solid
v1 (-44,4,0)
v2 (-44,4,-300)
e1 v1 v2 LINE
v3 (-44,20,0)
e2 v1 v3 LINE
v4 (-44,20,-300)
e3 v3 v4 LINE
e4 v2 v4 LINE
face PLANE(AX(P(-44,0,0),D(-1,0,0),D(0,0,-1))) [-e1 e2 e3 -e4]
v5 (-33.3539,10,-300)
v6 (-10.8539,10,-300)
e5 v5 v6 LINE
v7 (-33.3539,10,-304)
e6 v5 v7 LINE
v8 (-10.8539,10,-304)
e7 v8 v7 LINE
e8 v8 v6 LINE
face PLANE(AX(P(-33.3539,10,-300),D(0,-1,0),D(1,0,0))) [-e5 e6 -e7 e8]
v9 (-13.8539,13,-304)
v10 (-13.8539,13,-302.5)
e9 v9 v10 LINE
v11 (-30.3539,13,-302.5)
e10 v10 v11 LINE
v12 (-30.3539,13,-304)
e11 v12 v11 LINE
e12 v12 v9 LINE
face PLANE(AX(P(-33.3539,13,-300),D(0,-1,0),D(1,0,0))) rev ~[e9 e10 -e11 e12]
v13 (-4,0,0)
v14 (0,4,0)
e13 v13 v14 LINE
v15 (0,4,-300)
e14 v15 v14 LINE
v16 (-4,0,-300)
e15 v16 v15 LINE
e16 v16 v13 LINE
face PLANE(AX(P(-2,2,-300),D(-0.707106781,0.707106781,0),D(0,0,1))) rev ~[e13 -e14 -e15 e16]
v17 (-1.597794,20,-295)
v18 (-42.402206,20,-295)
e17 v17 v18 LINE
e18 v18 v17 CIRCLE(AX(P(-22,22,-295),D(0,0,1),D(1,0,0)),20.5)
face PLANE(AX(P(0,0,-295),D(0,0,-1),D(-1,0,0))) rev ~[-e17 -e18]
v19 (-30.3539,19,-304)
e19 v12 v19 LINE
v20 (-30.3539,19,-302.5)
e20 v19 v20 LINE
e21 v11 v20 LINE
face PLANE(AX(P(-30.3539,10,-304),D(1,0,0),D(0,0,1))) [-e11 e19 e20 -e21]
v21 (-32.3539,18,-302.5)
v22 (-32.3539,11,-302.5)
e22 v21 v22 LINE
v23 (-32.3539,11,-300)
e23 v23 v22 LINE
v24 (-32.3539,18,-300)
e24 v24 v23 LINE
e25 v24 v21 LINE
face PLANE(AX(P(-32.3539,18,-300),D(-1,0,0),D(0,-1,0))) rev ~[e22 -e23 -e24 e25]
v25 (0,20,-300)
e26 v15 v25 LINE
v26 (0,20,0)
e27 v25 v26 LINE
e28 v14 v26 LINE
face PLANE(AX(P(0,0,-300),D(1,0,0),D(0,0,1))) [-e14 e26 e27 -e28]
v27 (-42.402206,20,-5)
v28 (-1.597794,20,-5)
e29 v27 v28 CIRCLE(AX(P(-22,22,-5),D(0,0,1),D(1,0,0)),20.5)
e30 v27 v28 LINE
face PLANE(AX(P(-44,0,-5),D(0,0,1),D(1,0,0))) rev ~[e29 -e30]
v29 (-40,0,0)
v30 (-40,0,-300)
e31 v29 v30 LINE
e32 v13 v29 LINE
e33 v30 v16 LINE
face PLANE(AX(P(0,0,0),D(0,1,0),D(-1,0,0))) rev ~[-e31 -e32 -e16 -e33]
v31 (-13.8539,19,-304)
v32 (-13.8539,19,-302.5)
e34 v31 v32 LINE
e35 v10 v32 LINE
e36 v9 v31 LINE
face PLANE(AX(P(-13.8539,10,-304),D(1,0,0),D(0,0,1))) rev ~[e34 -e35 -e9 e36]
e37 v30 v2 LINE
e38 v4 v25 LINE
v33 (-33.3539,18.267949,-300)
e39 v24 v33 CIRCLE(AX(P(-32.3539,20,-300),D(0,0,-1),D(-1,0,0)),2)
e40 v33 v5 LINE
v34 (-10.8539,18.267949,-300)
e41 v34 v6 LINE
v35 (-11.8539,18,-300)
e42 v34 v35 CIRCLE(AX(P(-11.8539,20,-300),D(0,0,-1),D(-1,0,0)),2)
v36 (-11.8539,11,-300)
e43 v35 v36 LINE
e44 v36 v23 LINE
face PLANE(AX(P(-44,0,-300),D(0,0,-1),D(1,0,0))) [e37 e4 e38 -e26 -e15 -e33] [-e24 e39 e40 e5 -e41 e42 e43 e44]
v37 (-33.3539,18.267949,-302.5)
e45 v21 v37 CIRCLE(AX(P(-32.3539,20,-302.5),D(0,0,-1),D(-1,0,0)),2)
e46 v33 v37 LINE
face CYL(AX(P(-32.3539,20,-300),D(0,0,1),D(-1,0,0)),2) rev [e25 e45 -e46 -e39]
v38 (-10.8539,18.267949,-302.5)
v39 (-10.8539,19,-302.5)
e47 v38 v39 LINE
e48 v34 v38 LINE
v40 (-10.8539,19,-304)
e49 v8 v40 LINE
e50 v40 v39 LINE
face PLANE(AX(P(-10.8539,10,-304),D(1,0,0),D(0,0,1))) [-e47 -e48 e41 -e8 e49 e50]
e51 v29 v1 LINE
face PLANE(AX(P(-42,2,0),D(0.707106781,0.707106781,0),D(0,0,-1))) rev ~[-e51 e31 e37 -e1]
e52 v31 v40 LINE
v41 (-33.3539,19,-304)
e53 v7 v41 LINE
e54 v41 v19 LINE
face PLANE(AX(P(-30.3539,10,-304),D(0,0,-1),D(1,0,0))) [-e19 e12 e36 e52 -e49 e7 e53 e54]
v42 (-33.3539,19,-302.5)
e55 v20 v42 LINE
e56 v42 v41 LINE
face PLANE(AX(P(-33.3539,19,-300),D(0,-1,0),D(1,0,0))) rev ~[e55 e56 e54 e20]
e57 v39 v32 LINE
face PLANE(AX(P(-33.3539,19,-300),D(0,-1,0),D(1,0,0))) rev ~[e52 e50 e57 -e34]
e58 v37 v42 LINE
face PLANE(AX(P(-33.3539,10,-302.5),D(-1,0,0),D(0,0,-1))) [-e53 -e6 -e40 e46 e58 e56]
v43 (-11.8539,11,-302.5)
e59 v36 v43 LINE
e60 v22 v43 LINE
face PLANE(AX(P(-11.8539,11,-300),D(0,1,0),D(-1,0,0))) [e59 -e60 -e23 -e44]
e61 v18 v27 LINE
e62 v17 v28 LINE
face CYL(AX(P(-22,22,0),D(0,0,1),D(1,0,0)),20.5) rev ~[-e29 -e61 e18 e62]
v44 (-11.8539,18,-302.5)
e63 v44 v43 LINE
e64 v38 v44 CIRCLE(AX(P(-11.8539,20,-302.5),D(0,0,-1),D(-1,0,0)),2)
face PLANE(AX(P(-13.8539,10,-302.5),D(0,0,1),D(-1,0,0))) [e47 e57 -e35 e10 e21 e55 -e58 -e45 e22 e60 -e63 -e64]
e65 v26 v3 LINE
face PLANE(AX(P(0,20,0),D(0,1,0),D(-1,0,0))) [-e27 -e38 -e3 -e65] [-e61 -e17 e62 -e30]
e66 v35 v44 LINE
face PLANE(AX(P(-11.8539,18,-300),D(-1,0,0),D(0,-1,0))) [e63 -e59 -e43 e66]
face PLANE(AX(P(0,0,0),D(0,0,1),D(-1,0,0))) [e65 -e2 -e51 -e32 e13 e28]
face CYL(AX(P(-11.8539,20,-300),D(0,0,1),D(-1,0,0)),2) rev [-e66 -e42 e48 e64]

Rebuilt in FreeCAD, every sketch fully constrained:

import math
import FreeCAD as App
import Part
import Sketcher


def edges_at(feature, points):
    """Names of the edges that pass closest to the given points."""
    edges = feature.Shape.Edges
    near = lambda p: min(range(len(edges)), key=lambda i: edges[i].distToShape(Part.Vertex(*p))[0])
    return sorted({f"Edge{near(p) + 1}" for p in points})

doc = App.newDocument("Part")
params = doc.addObject("Spreadsheet::Sheet", "Params")
for row, (alias, value) in enumerate([
    ("sketch1_width", "44 mm"),
    ("sketch1_height", "300 mm"),
    ("pad1_length", "20 mm"),
    ("sketch2_diameter", "41 mm"),
    ("pocket1_length", "300 mm"),
    ("sketch3_width", "44 mm"),
    ("sketch3_height", "20 mm"),
    ("pad2_length", "5 mm"),
    ("sketch4_width", "44 mm"),
    ("sketch4_height", "20 mm"),
    ("pad3_length", "5 mm"),
    ("chamfer_size", "4 mm"),
    ("chamfer2_size", "4 mm"),
    ("sketch5_radius", "2 mm"),
    ("sketch5_width", "20.5 mm"),
    ("sketch5_width2", "1 mm"),
    ("pad4_length", "2.5 mm"),
    ("sketch6_height", "1.5 mm"),
    ("sketch6_width", "16.5 mm"),
    ("pad5_length", "3 mm"),
    ("sketch7_width", "3 mm"),
    ("sketch7_height", "1.5 mm"),
    ("pad6_length", "9 mm"),
], start=1):
    params.set(f"A{row}", alias)
    params.set(f"B{row}", "=" + value)
    params.setAlias(f"B{row}", alias)

body = doc.addObject("PartDesign::Body", "Body")

# Sketch on XZ plane
sketch1 = body.newObject("Sketcher::SketchObject", "Sketch")
sketch1.AttachmentSupport = (doc.getObject("XZ_Plane"), [""])
sketch1.MapMode = "FlatFace"
sketch1.addGeometry([
    Part.LineSegment(App.Vector(-44, 0, 0), App.Vector(0, 0, 0)),
    Part.LineSegment(App.Vector(0, 0, 0), App.Vector(0, -300, 0)),
    Part.LineSegment(App.Vector(0, -300, 0), App.Vector(-44, -300, 0)),
    Part.LineSegment(App.Vector(-44, -300, 0), App.Vector(-44, 0, 0)),
], False)
sketch1.addConstraint([
    Sketcher.Constraint("Coincident", 0, 2, 1, 1),
    Sketcher.Constraint("Coincident", 1, 2, 2, 1),
    Sketcher.Constraint("Coincident", 2, 2, 3, 1),
    Sketcher.Constraint("Coincident", 3, 2, 0, 1),
    Sketcher.Constraint("Horizontal", 0),
    Sketcher.Constraint("Vertical", 1),
    Sketcher.Constraint("Horizontal", 2),
    Sketcher.Constraint("Vertical", 3),
    Sketcher.Constraint("Coincident", 0, 2, -1, 1),
    Sketcher.Constraint("DistanceX", 0, 1, 0, 2, 44.0),
    Sketcher.Constraint("DistanceY", 1, 2, 1, 1, 300.0),
])
sketch1.setExpression("Constraints[9]", "Params.sketch1_width")
sketch1.setExpression("Constraints[10]", "Params.sketch1_height")
pad1 = body.newObject("PartDesign::Pad", "Pad")
pad1.Profile = sketch1
pad1.setExpression("Length", "Params.pad1_length")
pad1.Reversed = True

# Sketch on XY plane
sketch2 = body.newObject("Sketcher::SketchObject", "Sketch001")
sketch2.AttachmentSupport = (doc.getObject("XY_Plane"), [""])
sketch2.MapMode = "FlatFace"
sketch2.addGeometry(Part.Circle(App.Vector(-22, 22, 0), App.Vector(0, 0, 1), 20), False)
sketch2.addConstraint([
    Sketcher.Constraint("Diameter", 0, 41.0),
    Sketcher.Constraint("DistanceX", 0, 3, -1, 1, 22.0),
    Sketcher.Constraint("DistanceY", -1, 1, 0, 3, 22.0),
])
sketch2.setExpression("Constraints[0]", "Params.sketch2_diameter")
pocket1 = body.newObject("PartDesign::Pocket", "Pocket")
pocket1.Profile = sketch2
pocket1.setExpression("Length", "Params.pocket1_length")

# Sketch on XY plane
sketch3 = body.newObject("Sketcher::SketchObject", "Sketch002")
sketch3.AttachmentSupport = (doc.getObject("XY_Plane"), [""])
sketch3.MapMode = "FlatFace"
sketch3.addGeometry([
    Part.LineSegment(App.Vector(-44, 20, 0), App.Vector(-44, 0, 0)),
    Part.LineSegment(App.Vector(-44, 0, 0), App.Vector(0, 0, 0)),
    Part.LineSegment(App.Vector(0, 0, 0), App.Vector(0, 20, 0)),
    Part.LineSegment(App.Vector(0, 20, 0), App.Vector(-44, 20, 0)),
], False)
sketch3.addConstraint([
    Sketcher.Constraint("Coincident", 0, 2, 1, 1),
    Sketcher.Constraint("Coincident", 1, 2, 2, 1),
    Sketcher.Constraint("Coincident", 2, 2, 3, 1),
    Sketcher.Constraint("Coincident", 3, 2, 0, 1),
    Sketcher.Constraint("Vertical", 0),
    Sketcher.Constraint("Horizontal", 1),
    Sketcher.Constraint("Vertical", 2),
    Sketcher.Constraint("Horizontal", 3),
    Sketcher.Constraint("Coincident", 1, 2, -1, 1),
    Sketcher.Constraint("DistanceX", 1, 1, 1, 2, 44.0),
    Sketcher.Constraint("DistanceY", 0, 2, 0, 1, 20.0),
])
sketch3.setExpression("Constraints[9]", "Params.sketch3_width")
sketch3.setExpression("Constraints[10]", "Params.sketch3_height")
pad2 = body.newObject("PartDesign::Pad", "Pad001")
pad2.Profile = sketch3
pad2.setExpression("Length", "Params.pad2_length")
pad2.Reversed = True

# Sketch on XY plane
sketch4 = body.newObject("Sketcher::SketchObject", "Sketch003")
sketch4.AttachmentSupport = (doc.getObject("XY_Plane"), [""])
sketch4.MapMode = "FlatFace"
sketch4.AttachmentOffset = App.Placement(App.Vector(0, 0, -300), App.Rotation())
sketch4.addGeometry([
    Part.LineSegment(App.Vector(0, 20, 0), App.Vector(0, 0, 0)),
    Part.LineSegment(App.Vector(0, 0, 0), App.Vector(-44, 0, 0)),
    Part.LineSegment(App.Vector(-44, 0, 0), App.Vector(-44, 20, 0)),
    Part.LineSegment(App.Vector(-44, 20, 0), App.Vector(0, 20, 0)),
], False)
sketch4.addConstraint([
    Sketcher.Constraint("Coincident", 0, 2, 1, 1),
    Sketcher.Constraint("Coincident", 1, 2, 2, 1),
    Sketcher.Constraint("Coincident", 2, 2, 3, 1),
    Sketcher.Constraint("Coincident", 3, 2, 0, 1),
    Sketcher.Constraint("Vertical", 0),
    Sketcher.Constraint("Horizontal", 1),
    Sketcher.Constraint("Vertical", 2),
    Sketcher.Constraint("Horizontal", 3),
    Sketcher.Constraint("Coincident", 0, 2, -1, 1),
    Sketcher.Constraint("DistanceX", 1, 2, 1, 1, 44.0),
    Sketcher.Constraint("DistanceY", 0, 2, 0, 1, 20.0),
])
sketch4.setExpression("Constraints[9]", "Params.sketch4_width")
sketch4.setExpression("Constraints[10]", "Params.sketch4_height")
pad3 = body.newObject("PartDesign::Pad", "Pad002")
pad3.Profile = sketch4
pad3.setExpression("Length", "Params.pad3_length")
doc.recompute()

chamfer = body.newObject("PartDesign::Chamfer", "Chamfer")
chamfer.Base = (pad3, edges_at(pad3, [(0, 0, -150)]))
chamfer.setExpression("Size", "Params.chamfer_size")
doc.recompute()

chamfer2 = body.newObject("PartDesign::Chamfer", "Chamfer001")
chamfer2.Base = (chamfer, edges_at(chamfer, [(-44, 0, -150)]))
chamfer2.setExpression("Size", "Params.chamfer2_size")

# Sketch on XY plane
sketch5 = body.newObject("Sketcher::SketchObject", "Sketch004")
sketch5.AttachmentSupport = (doc.getObject("XY_Plane"), [""])
sketch5.MapMode = "FlatFace"
sketch5.AttachmentOffset = App.Placement(App.Vector(0, 0, -300), App.Rotation())
sketch5.addGeometry([
    Part.ArcOfCircle(Part.Circle(App.Vector(-11.9, 20, 0), App.Vector(0, 0, 1), 2), math.radians(-90), math.radians(-60)),  # 0
    Part.LineSegment(App.Vector(-10.9, 18.3, 0), App.Vector(-10.9, 10, 0)),  # 1
    Part.LineSegment(App.Vector(-10.9, 10, 0), App.Vector(-33.4, 10, 0)),  # 2
    Part.LineSegment(App.Vector(-33.4, 10, 0), App.Vector(-33.4, 18.3, 0)),  # 3
    Part.ArcOfCircle(Part.Circle(App.Vector(-32.4, 20, 0), App.Vector(0, 0, 1), 2), math.radians(-120), math.radians(-90)),  # 4
    Part.LineSegment(App.Vector(-32.4, 18, 0), App.Vector(-32.4, 11, 0)),  # 5
    Part.LineSegment(App.Vector(-32.4, 11, 0), App.Vector(-11.9, 11, 0)),  # 6
    Part.LineSegment(App.Vector(-11.9, 11, 0), App.Vector(-11.9, 18, 0)),  # 7
], False)
sketch5.addConstraint([
    Sketcher.Constraint("Coincident", 0, 2, 1, 1),
    Sketcher.Constraint("Coincident", 1, 2, 2, 1),
    Sketcher.Constraint("Coincident", 2, 2, 3, 1),
    Sketcher.Constraint("Coincident", 3, 2, 4, 1),
    Sketcher.Constraint("Coincident", 4, 2, 5, 1),
    Sketcher.Constraint("Coincident", 5, 2, 6, 1),
    Sketcher.Constraint("Coincident", 6, 2, 7, 1),
    Sketcher.Constraint("Coincident", 7, 2, 0, 1),
    Sketcher.Constraint("Vertical", 1),
    Sketcher.Constraint("Horizontal", 2),
    Sketcher.Constraint("Vertical", 3),
    Sketcher.Constraint("Vertical", 5),
    Sketcher.Constraint("Horizontal", 6),
    Sketcher.Constraint("Vertical", 7),
    Sketcher.Constraint("Equal", 0, 4),
    Sketcher.Constraint("Horizontal", 0, 3, 4, 3),
    Sketcher.Constraint("Horizontal", 0, 2, 3, 2),
    Sketcher.Constraint("Vertical", 0, 3, 6, 2),
    Sketcher.Constraint("Radius", 0, 2.0),
    Sketcher.Constraint("DistanceX", 6, 1, 6, 2, 20.5),
    Sketcher.Constraint("DistanceY", -1, 1, 0, 3, 20.0),
    Sketcher.Constraint("DistanceX", 0, 3, 0, 2, 1.0),
    Sketcher.Constraint("DistanceX", 3, 2, 4, 2, 1.0),
    Sketcher.Constraint("DistanceY", 2, 2, 5, 2, 1.0),
    Sketcher.Constraint("DistanceY", 5, 2, 4, 3, 9.0),
    Sketcher.Constraint("DistanceX", 0, 3, -1, 1, 11.854),
])
sketch5.setExpression("Constraints[18]", "Params.sketch5_radius")
sketch5.setExpression("Constraints[19]", "Params.sketch5_width")
sketch5.setExpression("Constraints[21]", "Params.sketch5_width2")
pad4 = body.newObject("PartDesign::Pad", "Pad003")
pad4.Profile = sketch5
pad4.setExpression("Length", "Params.pad4_length")
pad4.Reversed = True

# Sketch on XZ plane
sketch6 = body.newObject("Sketcher::SketchObject", "Sketch005")
sketch6.AttachmentSupport = (doc.getObject("XZ_Plane"), [""])
sketch6.MapMode = "FlatFace"
sketch6.AttachmentOffset = App.Placement(App.Vector(0, 0, -10), App.Rotation())
sketch6.addGeometry([
    Part.LineSegment(App.Vector(-13.9, -304, 0), App.Vector(-13.9, -302.5, 0)),
    Part.LineSegment(App.Vector(-13.9, -302.5, 0), App.Vector(-30.4, -302.5, 0)),
    Part.LineSegment(App.Vector(-30.4, -302.5, 0), App.Vector(-30.4, -304, 0)),
    Part.LineSegment(App.Vector(-30.4, -304, 0), App.Vector(-13.9, -304, 0)),
], False)
sketch6.addConstraint([
    Sketcher.Constraint("Coincident", 0, 2, 1, 1),
    Sketcher.Constraint("Coincident", 1, 2, 2, 1),
    Sketcher.Constraint("Coincident", 2, 2, 3, 1),
    Sketcher.Constraint("Coincident", 3, 2, 0, 1),
    Sketcher.Constraint("Vertical", 0),
    Sketcher.Constraint("Horizontal", 1),
    Sketcher.Constraint("Vertical", 2),
    Sketcher.Constraint("Horizontal", 3),
    Sketcher.Constraint("DistanceY", 0, 1, 0, 2, 1.5),
    Sketcher.Constraint("DistanceX", 1, 2, 1, 1, 16.5),
    Sketcher.Constraint("DistanceY", 2, 2, -1, 1, 304.0),
    Sketcher.Constraint("DistanceX", 0, 2, -1, 1, 13.854),
])
sketch6.setExpression("Constraints[8]", "Params.sketch6_height")
sketch6.setExpression("Constraints[9]", "Params.sketch6_width")
pad5 = body.newObject("PartDesign::Pad", "Pad004")
pad5.Profile = sketch6
pad5.setExpression("Length", "Params.pad5_length")
pad5.Reversed = True

# Sketch on XZ plane
sketch7 = body.newObject("Sketcher::SketchObject", "Sketch006")
sketch7.AttachmentSupport = (doc.getObject("XZ_Plane"), [""])
sketch7.MapMode = "FlatFace"
sketch7.AttachmentOffset = App.Placement(App.Vector(0, 0, -10), App.Rotation())
sketch7.addGeometry([
    Part.LineSegment(App.Vector(-10.9, -304, 0), App.Vector(-10.9, -302.5, 0)),  # 0
    Part.LineSegment(App.Vector(-10.9, -302.5, 0), App.Vector(-13.9, -302.5, 0)),  # 1
    Part.LineSegment(App.Vector(-13.9, -302.5, 0), App.Vector(-13.9, -304, 0)),  # 2
    Part.LineSegment(App.Vector(-13.9, -304, 0), App.Vector(-10.9, -304, 0)),  # 3
    Part.LineSegment(App.Vector(-30.4, -304, 0), App.Vector(-30.4, -302.5, 0)),  # 4
    Part.LineSegment(App.Vector(-30.4, -302.5, 0), App.Vector(-33.4, -302.5, 0)),  # 5
    Part.LineSegment(App.Vector(-33.4, -302.5, 0), App.Vector(-33.4, -304, 0)),  # 6
    Part.LineSegment(App.Vector(-33.4, -304, 0), App.Vector(-30.4, -304, 0)),  # 7
], False)
sketch7.addConstraint([
    Sketcher.Constraint("Coincident", 0, 2, 1, 1),
    Sketcher.Constraint("Coincident", 1, 2, 2, 1),
    Sketcher.Constraint("Coincident", 2, 2, 3, 1),
    Sketcher.Constraint("Coincident", 3, 2, 0, 1),
    Sketcher.Constraint("Coincident", 4, 2, 5, 1),
    Sketcher.Constraint("Coincident", 5, 2, 6, 1),
    Sketcher.Constraint("Coincident", 6, 2, 7, 1),
    Sketcher.Constraint("Coincident", 7, 2, 4, 1),
    Sketcher.Constraint("Vertical", 0),
    Sketcher.Constraint("Horizontal", 1),
    Sketcher.Constraint("Vertical", 2),
    Sketcher.Constraint("Horizontal", 3),
    Sketcher.Constraint("Vertical", 4),
    Sketcher.Constraint("Horizontal", 5),
    Sketcher.Constraint("Vertical", 6),
    Sketcher.Constraint("Horizontal", 7),
    Sketcher.Constraint("Horizontal", 1, 2, 4, 2),
    Sketcher.Constraint("Horizontal", 3, 2, 6, 2),
    Sketcher.Constraint("Equal", 3, 5),
    Sketcher.Constraint("DistanceX", 1, 2, 1, 1, 3.0),
    Sketcher.Constraint("DistanceY", 0, 1, 0, 2, 1.5),
    Sketcher.Constraint("DistanceY", 2, 2, -1, 1, 304.0),
    Sketcher.Constraint("DistanceX", 4, 2, 1, 2, 16.5),
    Sketcher.Constraint("DistanceX", 0, 2, -1, 1, 10.854),
])
sketch7.setExpression("Constraints[19]", "Params.sketch7_width")
sketch7.setExpression("Constraints[20]", "Params.sketch7_height")
pad6 = body.newObject("PartDesign::Pad", "Pad005")
pad6.Profile = sketch7
pad6.setExpression("Length", "Params.pad6_length")
pad6.Reversed = True

doc.recompute()
